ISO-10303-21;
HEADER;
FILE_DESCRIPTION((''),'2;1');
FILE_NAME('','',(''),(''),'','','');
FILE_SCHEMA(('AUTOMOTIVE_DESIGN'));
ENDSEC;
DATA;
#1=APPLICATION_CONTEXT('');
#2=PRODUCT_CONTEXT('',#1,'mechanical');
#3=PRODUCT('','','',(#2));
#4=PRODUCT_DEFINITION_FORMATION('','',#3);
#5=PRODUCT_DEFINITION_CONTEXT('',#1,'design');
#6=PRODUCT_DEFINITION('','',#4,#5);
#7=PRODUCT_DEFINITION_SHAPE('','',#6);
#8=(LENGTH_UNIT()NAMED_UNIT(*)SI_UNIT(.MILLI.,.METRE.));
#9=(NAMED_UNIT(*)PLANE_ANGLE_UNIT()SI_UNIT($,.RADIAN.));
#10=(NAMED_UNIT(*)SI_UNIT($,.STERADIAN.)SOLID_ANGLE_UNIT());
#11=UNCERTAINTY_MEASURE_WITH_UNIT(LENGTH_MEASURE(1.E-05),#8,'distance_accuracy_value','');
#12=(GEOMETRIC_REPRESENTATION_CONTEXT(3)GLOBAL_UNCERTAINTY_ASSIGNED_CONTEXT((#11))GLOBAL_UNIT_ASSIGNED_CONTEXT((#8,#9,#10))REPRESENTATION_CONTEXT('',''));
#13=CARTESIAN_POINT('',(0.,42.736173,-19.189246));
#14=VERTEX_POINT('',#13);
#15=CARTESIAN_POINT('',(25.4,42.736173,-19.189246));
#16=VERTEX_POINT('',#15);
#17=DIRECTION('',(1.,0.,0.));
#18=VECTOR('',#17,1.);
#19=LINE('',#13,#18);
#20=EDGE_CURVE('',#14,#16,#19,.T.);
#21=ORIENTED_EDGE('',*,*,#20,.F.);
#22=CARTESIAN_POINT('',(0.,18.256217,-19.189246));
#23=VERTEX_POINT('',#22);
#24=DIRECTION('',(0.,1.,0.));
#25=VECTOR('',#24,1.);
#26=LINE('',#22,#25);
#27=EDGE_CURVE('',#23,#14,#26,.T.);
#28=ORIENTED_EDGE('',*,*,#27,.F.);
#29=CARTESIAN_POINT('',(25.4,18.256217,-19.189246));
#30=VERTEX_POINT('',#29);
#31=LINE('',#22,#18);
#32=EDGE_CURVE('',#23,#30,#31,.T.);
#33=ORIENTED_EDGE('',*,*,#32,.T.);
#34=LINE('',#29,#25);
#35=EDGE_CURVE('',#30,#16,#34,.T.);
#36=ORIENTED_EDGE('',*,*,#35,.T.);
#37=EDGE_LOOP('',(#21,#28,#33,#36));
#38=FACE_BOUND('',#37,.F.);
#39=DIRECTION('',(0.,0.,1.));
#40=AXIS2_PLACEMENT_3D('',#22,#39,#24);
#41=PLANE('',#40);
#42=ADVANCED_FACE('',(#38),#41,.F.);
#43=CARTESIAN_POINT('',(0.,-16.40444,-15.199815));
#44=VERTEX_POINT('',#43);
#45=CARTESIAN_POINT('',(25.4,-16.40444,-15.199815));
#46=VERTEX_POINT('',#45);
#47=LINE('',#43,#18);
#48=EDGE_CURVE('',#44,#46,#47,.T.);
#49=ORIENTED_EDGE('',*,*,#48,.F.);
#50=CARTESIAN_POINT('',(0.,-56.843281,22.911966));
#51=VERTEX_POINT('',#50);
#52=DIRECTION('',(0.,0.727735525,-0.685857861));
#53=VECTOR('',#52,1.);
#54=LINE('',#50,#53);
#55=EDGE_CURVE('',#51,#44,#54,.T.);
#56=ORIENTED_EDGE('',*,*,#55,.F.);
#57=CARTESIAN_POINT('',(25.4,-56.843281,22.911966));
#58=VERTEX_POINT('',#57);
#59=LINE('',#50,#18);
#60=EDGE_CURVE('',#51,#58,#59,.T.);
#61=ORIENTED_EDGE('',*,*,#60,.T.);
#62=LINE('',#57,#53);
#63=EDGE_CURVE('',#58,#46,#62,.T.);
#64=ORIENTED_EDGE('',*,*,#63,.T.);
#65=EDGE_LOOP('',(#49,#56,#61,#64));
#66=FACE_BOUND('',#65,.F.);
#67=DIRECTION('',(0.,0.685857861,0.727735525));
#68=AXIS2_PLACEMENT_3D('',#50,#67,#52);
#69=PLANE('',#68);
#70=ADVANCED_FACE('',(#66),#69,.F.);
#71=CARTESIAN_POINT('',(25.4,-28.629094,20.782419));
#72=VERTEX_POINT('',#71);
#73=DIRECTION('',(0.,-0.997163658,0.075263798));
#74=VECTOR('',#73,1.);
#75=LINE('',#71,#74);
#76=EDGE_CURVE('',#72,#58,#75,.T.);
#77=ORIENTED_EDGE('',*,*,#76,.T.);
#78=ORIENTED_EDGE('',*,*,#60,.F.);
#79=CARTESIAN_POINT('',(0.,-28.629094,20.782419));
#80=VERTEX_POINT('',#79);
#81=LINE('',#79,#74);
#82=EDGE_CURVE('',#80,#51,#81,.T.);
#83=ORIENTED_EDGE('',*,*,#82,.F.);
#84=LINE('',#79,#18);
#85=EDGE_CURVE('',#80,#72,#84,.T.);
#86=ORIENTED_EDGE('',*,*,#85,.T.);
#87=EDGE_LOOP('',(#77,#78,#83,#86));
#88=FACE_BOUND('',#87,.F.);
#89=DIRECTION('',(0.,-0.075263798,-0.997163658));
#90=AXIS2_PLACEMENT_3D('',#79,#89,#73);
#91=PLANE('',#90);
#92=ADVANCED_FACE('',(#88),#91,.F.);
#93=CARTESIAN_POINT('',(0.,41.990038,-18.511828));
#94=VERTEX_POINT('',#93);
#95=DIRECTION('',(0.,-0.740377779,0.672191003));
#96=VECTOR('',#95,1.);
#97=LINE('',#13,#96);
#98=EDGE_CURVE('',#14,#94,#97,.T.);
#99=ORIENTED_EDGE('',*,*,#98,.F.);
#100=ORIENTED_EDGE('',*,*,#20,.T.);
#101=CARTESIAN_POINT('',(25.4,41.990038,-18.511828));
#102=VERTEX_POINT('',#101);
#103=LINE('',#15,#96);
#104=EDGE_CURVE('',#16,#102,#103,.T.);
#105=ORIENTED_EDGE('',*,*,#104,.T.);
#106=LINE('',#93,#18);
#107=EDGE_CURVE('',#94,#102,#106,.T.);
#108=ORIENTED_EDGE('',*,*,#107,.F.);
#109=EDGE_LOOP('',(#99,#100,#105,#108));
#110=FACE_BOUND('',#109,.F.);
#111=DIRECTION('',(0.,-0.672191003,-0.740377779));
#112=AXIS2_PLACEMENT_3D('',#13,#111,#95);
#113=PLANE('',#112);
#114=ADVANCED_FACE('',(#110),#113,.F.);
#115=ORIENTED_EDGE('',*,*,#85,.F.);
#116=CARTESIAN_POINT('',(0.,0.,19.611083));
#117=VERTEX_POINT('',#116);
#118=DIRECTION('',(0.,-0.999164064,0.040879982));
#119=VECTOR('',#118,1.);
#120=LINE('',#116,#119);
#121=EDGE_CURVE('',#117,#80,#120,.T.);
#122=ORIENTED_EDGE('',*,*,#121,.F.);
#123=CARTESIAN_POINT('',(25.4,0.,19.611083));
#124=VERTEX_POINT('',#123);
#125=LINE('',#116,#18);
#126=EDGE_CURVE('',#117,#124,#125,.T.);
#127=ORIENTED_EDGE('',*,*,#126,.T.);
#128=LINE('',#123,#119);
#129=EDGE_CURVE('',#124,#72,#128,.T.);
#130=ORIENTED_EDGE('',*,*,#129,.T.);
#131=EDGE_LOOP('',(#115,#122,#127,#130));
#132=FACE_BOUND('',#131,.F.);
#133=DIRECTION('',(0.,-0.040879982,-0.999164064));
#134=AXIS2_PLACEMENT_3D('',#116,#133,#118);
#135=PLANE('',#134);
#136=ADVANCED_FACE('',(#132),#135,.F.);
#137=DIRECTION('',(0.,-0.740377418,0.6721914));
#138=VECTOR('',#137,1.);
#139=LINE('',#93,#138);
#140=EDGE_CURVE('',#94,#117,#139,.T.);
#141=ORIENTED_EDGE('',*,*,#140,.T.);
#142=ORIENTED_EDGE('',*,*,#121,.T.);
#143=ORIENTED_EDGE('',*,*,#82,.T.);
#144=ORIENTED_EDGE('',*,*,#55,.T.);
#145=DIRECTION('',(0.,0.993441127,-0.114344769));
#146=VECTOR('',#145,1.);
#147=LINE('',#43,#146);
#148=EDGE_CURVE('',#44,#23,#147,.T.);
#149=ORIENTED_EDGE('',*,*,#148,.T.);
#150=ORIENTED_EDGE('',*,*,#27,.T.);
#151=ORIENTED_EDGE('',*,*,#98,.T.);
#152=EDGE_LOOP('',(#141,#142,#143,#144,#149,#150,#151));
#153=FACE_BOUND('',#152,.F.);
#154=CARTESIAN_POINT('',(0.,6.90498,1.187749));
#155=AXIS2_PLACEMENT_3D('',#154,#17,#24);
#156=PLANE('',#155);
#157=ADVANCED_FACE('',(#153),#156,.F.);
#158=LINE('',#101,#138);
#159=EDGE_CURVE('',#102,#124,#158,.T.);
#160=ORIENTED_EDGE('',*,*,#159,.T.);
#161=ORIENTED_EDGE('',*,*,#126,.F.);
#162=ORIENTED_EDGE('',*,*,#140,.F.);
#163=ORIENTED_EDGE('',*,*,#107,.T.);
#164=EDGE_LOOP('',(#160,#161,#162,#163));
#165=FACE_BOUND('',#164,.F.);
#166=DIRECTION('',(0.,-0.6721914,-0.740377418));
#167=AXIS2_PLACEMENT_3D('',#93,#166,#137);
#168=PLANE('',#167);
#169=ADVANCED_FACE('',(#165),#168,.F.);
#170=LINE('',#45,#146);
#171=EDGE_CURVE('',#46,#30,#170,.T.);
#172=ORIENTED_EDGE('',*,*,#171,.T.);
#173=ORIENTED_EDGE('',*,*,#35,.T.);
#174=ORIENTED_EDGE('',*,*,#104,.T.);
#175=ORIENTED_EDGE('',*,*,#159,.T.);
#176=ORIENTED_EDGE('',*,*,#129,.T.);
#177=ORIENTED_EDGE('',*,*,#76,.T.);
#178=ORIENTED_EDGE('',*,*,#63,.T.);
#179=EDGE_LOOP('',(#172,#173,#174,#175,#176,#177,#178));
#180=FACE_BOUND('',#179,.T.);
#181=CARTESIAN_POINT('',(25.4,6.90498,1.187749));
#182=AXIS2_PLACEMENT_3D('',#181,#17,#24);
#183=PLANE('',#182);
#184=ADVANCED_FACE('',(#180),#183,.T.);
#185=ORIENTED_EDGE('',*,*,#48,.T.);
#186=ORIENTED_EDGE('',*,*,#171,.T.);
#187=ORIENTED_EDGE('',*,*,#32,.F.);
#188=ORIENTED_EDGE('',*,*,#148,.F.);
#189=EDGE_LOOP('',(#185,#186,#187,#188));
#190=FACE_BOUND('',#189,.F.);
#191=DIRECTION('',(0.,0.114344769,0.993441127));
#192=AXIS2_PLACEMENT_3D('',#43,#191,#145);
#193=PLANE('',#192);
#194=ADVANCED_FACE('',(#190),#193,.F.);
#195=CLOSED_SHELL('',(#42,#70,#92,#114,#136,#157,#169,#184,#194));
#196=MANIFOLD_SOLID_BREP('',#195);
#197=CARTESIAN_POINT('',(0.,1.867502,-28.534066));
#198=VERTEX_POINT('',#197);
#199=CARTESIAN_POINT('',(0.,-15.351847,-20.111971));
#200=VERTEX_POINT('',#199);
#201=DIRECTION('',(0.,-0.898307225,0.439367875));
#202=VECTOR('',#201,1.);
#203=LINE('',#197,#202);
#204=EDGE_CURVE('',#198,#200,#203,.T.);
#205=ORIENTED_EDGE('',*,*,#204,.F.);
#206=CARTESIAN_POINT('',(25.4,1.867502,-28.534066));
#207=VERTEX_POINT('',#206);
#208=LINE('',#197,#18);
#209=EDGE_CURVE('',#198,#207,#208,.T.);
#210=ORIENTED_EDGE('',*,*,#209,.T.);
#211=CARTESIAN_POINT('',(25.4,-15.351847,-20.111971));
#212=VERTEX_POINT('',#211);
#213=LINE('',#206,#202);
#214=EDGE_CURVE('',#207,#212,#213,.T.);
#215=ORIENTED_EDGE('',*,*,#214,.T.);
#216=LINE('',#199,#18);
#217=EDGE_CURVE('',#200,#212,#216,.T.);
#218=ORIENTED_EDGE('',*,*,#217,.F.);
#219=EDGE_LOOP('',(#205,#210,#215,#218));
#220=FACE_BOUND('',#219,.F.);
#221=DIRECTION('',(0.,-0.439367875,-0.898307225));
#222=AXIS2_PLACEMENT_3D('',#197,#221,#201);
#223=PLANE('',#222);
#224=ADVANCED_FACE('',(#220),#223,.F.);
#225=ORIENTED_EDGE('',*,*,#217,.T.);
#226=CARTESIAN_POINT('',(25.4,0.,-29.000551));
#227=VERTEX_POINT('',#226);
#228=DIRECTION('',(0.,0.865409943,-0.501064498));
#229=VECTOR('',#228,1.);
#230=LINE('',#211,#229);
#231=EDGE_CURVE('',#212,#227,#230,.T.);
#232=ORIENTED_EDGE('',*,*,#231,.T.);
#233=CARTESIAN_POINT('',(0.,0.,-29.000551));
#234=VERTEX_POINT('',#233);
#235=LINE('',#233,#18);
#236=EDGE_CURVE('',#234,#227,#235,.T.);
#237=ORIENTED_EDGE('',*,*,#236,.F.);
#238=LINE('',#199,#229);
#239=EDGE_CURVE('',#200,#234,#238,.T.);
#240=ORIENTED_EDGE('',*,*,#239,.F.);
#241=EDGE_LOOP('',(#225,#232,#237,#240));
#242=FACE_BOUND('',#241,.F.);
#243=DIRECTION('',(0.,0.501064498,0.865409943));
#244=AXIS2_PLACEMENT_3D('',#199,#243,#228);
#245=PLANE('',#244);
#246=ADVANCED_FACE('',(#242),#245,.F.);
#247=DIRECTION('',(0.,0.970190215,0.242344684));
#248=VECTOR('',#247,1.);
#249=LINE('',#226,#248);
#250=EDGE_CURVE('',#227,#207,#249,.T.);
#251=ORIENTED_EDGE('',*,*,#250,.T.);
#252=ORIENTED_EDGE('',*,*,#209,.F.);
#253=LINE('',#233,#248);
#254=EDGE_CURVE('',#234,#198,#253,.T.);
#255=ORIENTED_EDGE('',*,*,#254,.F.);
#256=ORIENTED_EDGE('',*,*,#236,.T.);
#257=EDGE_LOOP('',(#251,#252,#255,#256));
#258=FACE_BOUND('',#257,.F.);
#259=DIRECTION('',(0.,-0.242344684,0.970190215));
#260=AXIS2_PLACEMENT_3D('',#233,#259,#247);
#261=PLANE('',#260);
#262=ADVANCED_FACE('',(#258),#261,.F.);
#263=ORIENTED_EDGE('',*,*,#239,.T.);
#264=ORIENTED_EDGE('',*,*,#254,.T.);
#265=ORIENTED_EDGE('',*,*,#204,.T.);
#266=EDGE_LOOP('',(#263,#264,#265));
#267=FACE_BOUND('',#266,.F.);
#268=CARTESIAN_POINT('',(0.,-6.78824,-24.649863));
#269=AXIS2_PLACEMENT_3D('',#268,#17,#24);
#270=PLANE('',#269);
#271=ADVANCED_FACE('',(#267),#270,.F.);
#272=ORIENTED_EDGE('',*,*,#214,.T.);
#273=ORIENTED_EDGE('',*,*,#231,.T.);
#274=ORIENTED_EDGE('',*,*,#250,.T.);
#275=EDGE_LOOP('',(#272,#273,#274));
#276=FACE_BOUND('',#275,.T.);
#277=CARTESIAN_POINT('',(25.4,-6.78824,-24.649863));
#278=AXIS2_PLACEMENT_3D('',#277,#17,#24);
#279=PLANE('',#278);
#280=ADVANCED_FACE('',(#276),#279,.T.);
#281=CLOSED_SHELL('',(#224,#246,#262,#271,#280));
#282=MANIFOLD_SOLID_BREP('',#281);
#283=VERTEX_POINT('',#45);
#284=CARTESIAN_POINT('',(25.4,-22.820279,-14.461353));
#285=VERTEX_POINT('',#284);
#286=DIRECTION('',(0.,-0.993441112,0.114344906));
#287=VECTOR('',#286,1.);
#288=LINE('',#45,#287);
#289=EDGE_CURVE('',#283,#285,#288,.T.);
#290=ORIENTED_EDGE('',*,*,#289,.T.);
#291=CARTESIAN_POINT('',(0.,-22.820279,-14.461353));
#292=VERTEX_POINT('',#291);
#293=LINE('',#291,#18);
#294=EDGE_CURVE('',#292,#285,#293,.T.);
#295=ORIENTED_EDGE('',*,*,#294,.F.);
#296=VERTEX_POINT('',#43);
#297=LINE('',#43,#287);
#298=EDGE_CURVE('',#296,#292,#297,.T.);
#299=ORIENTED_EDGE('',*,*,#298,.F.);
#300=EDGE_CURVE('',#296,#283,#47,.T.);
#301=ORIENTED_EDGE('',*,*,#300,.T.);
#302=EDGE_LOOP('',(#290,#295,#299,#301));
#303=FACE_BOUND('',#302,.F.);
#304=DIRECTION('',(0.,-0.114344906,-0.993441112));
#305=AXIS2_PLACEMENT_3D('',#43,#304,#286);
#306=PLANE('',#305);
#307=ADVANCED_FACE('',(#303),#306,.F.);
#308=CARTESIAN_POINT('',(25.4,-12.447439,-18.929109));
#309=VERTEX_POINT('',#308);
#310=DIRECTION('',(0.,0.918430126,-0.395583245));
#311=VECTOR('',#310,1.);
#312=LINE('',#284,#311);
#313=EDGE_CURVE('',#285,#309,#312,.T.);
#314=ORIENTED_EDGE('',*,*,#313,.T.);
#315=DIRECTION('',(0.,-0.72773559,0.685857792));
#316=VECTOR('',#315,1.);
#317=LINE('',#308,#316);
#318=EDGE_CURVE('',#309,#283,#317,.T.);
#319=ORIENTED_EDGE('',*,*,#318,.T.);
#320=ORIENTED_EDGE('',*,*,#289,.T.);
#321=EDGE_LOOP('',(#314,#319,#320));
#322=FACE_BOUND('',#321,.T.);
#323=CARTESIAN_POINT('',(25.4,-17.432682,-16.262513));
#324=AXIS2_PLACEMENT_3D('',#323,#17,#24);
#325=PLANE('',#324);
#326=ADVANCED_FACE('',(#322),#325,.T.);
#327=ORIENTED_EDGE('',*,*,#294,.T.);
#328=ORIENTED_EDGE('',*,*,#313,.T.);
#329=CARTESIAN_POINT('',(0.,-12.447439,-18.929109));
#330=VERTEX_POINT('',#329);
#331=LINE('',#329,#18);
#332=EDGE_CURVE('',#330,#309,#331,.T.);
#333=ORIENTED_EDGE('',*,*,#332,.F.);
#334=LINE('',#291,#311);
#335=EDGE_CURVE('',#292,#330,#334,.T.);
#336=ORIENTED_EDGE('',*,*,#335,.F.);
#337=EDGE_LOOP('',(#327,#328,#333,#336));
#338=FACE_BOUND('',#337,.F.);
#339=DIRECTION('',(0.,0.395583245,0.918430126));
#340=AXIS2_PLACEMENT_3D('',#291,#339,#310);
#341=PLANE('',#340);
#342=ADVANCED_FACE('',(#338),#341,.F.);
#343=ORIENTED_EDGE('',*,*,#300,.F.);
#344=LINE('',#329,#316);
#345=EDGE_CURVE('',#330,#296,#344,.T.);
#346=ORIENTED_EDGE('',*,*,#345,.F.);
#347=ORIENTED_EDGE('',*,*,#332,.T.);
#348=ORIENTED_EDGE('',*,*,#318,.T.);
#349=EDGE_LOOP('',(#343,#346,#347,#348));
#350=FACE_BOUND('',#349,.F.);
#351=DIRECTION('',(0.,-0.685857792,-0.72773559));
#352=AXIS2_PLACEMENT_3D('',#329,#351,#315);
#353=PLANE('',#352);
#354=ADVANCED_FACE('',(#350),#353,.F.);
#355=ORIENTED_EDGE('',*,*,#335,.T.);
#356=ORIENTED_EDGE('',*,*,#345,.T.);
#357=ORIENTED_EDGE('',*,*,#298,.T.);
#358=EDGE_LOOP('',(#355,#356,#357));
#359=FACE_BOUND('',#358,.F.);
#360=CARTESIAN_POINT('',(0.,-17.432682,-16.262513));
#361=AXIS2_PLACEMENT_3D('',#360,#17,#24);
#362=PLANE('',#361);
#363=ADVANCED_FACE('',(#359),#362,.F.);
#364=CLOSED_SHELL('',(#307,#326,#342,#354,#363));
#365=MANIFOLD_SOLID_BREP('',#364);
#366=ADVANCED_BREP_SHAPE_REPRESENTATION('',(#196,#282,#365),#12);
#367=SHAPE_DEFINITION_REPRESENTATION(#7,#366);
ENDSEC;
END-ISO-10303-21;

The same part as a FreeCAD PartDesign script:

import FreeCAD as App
import Part
import Sketcher

V = App.Vector
Q = App.Units.Quantity

doc = App.newDocument("Part")
body = doc.addObject("PartDesign::Body", "Body")
body.AllowCompound = True

# Sketch on YZ plane
sketch1 = body.newObject("Sketcher::SketchObject", "Sketch")
sketch1.AttachmentSupport = (doc.getObject("YZ_Plane"), [""])
sketch1.MapMode = "FlatFace"
sketch1.addGeometry(Part.LineSegment(V(0, 19.6, 0), V(-28.6, 20.8, 0)), False)
sketch1.addGeometry(Part.LineSegment(V(-28.6, 20.8, 0), V(-56.8, 22.9, 0)), False)
sketch1.addGeometry(Part.LineSegment(V(-56.8, 22.9, 0), V(-16.4, -15.2, 0)), False)
sketch1.addGeometry(Part.LineSegment(V(-16.4, -15.2, 0), V(18.3, -19.2, 0)), False)
sketch1.addGeometry(Part.LineSegment(V(18.3, -19.2, 0), V(42.7, -19.2, 0)), False)
sketch1.addGeometry(Part.LineSegment(V(42.7, -19.2, 0), V(42, -18.5, 0)), False)
sketch1.addGeometry(Part.LineSegment(V(42, -18.5, 0), V(0, 19.6, 0)), False)
sketch1.addGeometry(Part.LineSegment(V(0, -29, 0), V(1.9, -28.5, 0)), False)
sketch1.addGeometry(Part.LineSegment(V(1.9, -28.5, 0), V(-15.4, -20.1, 0)), False)
sketch1.addGeometry(Part.LineSegment(V(-15.4, -20.1, 0), V(0, -29, 0)), False)
sketch1.addGeometry(Part.LineSegment(V(-12.4, -18.9, 0), V(-16.4, -15.2, 0)), False)
sketch1.addGeometry(Part.LineSegment(V(-16.4, -15.2, 0), V(-22.8, -14.5, 0)), False)
sketch1.addGeometry(Part.LineSegment(V(-22.8, -14.5, 0), V(-12.4, -18.9, 0)), False)
sketch1.addConstraint(Sketcher.Constraint("Coincident", 0, 2, 1, 1))
sketch1.addConstraint(Sketcher.Constraint("Coincident", 1, 2, 2, 1))
sketch1.addConstraint(Sketcher.Constraint("Coincident", 2, 2, 3, 1))
sketch1.addConstraint(Sketcher.Constraint("Coincident", 3, 2, 4, 1))
sketch1.addConstraint(Sketcher.Constraint("Coincident", 4, 2, 5, 1))
sketch1.addConstraint(Sketcher.Constraint("Coincident", 5, 2, 6, 1))
sketch1.addConstraint(Sketcher.Constraint("Coincident", 6, 2, 0, 1))
sketch1.addConstraint(Sketcher.Constraint("Coincident", 7, 2, 8, 1))
sketch1.addConstraint(Sketcher.Constraint("Coincident", 8, 2, 9, 1))
sketch1.addConstraint(Sketcher.Constraint("Coincident", 9, 2, 7, 1))
sketch1.addConstraint(Sketcher.Constraint("Coincident", 10, 2, 11, 1))
sketch1.addConstraint(Sketcher.Constraint("Coincident", 11, 2, 12, 1))
sketch1.addConstraint(Sketcher.Constraint("Coincident", 12, 2, 10, 1))
sketch1.addConstraint(Sketcher.Constraint("Horizontal", 4))
sketch1.addConstraint(Sketcher.Constraint("Coincident", 10, 2, 2, 2))
sketch1.addConstraint(Sketcher.Constraint("PointOnObject", 6, 2, -2))
sketch1.addConstraint(Sketcher.Constraint("PointOnObject", 9, 2, -2))
sketch1.addConstraint(Sketcher.Constraint("Parallel", 5, 6))
sketch1.addConstraint(Sketcher.Constraint("Parallel", 2, 10))
sketch1.addConstraint(Sketcher.Constraint("Parallel", 3, 11))
sketch1.addConstraint(Sketcher.Constraint("Distance", 12, 11.294098))
sketch1.addConstraint(Sketcher.Constraint("DistanceY", 2, 2, 6, 2, 34.810898))
sketch1.addConstraint(Sketcher.Constraint("DistanceY", 9, 2, 11, 2, 14.539198))
sketch1.addConstraint(Sketcher.Constraint("DistanceX", 2, 2, 12, 2, 3.957001))
sketch1.addConstraint(Sketcher.Constraint("Distance", 1, 28.29444))
sketch1.addConstraint(Sketcher.Constraint("Distance", 6, 56.714369))
sketch1.addConstraint(Sketcher.Constraint("DistanceX", 4, 1, 4, 2, 24.479956))
sketch1.addConstraint(Sketcher.Constraint("DistanceY", -1, 1, 0, 2, 20.782419))
sketch1.addConstraint(Sketcher.Constraint("DistanceX", 1, 2, -1, 1, 56.843281))
sketch1.addConstraint(Sketcher.Constraint("DistanceX", 2, 2, -1, 1, 16.40444))
sketch1.addConstraint(Sketcher.Constraint("DistanceY", 5, 2, -1, 1, 18.511828))
sketch1.addConstraint(Sketcher.Constraint("DistanceY", 8, 2, -1, 1, 20.111971))
sketch1.addConstraint(Sketcher.Constraint("DistanceY", 9, 2, -1, 1, 29.000551))
sketch1.addConstraint(Sketcher.Constraint("DistanceX", 11, 2, -1, 1, 22.820279))
sketch1.addConstraint(Sketcher.Constraint("DistanceY", 2, 2, 1, 2, 38.111781))
sketch1.addConstraint(Sketcher.Constraint("DistanceY", 7, 2, 3, 2, 9.34482))
sketch1.addConstraint(Sketcher.Constraint("DistanceX", 7, 2, 4, 2, 40.868671))
sketch1.addConstraint(Sketcher.Constraint("DistanceX", 8, 2, 7, 2, 17.219349))
pad1 = body.newObject("PartDesign::Pad", "Pad")
pad1.Profile = sketch1
pad1.Length = Q("1 in")

doc.recompute()
